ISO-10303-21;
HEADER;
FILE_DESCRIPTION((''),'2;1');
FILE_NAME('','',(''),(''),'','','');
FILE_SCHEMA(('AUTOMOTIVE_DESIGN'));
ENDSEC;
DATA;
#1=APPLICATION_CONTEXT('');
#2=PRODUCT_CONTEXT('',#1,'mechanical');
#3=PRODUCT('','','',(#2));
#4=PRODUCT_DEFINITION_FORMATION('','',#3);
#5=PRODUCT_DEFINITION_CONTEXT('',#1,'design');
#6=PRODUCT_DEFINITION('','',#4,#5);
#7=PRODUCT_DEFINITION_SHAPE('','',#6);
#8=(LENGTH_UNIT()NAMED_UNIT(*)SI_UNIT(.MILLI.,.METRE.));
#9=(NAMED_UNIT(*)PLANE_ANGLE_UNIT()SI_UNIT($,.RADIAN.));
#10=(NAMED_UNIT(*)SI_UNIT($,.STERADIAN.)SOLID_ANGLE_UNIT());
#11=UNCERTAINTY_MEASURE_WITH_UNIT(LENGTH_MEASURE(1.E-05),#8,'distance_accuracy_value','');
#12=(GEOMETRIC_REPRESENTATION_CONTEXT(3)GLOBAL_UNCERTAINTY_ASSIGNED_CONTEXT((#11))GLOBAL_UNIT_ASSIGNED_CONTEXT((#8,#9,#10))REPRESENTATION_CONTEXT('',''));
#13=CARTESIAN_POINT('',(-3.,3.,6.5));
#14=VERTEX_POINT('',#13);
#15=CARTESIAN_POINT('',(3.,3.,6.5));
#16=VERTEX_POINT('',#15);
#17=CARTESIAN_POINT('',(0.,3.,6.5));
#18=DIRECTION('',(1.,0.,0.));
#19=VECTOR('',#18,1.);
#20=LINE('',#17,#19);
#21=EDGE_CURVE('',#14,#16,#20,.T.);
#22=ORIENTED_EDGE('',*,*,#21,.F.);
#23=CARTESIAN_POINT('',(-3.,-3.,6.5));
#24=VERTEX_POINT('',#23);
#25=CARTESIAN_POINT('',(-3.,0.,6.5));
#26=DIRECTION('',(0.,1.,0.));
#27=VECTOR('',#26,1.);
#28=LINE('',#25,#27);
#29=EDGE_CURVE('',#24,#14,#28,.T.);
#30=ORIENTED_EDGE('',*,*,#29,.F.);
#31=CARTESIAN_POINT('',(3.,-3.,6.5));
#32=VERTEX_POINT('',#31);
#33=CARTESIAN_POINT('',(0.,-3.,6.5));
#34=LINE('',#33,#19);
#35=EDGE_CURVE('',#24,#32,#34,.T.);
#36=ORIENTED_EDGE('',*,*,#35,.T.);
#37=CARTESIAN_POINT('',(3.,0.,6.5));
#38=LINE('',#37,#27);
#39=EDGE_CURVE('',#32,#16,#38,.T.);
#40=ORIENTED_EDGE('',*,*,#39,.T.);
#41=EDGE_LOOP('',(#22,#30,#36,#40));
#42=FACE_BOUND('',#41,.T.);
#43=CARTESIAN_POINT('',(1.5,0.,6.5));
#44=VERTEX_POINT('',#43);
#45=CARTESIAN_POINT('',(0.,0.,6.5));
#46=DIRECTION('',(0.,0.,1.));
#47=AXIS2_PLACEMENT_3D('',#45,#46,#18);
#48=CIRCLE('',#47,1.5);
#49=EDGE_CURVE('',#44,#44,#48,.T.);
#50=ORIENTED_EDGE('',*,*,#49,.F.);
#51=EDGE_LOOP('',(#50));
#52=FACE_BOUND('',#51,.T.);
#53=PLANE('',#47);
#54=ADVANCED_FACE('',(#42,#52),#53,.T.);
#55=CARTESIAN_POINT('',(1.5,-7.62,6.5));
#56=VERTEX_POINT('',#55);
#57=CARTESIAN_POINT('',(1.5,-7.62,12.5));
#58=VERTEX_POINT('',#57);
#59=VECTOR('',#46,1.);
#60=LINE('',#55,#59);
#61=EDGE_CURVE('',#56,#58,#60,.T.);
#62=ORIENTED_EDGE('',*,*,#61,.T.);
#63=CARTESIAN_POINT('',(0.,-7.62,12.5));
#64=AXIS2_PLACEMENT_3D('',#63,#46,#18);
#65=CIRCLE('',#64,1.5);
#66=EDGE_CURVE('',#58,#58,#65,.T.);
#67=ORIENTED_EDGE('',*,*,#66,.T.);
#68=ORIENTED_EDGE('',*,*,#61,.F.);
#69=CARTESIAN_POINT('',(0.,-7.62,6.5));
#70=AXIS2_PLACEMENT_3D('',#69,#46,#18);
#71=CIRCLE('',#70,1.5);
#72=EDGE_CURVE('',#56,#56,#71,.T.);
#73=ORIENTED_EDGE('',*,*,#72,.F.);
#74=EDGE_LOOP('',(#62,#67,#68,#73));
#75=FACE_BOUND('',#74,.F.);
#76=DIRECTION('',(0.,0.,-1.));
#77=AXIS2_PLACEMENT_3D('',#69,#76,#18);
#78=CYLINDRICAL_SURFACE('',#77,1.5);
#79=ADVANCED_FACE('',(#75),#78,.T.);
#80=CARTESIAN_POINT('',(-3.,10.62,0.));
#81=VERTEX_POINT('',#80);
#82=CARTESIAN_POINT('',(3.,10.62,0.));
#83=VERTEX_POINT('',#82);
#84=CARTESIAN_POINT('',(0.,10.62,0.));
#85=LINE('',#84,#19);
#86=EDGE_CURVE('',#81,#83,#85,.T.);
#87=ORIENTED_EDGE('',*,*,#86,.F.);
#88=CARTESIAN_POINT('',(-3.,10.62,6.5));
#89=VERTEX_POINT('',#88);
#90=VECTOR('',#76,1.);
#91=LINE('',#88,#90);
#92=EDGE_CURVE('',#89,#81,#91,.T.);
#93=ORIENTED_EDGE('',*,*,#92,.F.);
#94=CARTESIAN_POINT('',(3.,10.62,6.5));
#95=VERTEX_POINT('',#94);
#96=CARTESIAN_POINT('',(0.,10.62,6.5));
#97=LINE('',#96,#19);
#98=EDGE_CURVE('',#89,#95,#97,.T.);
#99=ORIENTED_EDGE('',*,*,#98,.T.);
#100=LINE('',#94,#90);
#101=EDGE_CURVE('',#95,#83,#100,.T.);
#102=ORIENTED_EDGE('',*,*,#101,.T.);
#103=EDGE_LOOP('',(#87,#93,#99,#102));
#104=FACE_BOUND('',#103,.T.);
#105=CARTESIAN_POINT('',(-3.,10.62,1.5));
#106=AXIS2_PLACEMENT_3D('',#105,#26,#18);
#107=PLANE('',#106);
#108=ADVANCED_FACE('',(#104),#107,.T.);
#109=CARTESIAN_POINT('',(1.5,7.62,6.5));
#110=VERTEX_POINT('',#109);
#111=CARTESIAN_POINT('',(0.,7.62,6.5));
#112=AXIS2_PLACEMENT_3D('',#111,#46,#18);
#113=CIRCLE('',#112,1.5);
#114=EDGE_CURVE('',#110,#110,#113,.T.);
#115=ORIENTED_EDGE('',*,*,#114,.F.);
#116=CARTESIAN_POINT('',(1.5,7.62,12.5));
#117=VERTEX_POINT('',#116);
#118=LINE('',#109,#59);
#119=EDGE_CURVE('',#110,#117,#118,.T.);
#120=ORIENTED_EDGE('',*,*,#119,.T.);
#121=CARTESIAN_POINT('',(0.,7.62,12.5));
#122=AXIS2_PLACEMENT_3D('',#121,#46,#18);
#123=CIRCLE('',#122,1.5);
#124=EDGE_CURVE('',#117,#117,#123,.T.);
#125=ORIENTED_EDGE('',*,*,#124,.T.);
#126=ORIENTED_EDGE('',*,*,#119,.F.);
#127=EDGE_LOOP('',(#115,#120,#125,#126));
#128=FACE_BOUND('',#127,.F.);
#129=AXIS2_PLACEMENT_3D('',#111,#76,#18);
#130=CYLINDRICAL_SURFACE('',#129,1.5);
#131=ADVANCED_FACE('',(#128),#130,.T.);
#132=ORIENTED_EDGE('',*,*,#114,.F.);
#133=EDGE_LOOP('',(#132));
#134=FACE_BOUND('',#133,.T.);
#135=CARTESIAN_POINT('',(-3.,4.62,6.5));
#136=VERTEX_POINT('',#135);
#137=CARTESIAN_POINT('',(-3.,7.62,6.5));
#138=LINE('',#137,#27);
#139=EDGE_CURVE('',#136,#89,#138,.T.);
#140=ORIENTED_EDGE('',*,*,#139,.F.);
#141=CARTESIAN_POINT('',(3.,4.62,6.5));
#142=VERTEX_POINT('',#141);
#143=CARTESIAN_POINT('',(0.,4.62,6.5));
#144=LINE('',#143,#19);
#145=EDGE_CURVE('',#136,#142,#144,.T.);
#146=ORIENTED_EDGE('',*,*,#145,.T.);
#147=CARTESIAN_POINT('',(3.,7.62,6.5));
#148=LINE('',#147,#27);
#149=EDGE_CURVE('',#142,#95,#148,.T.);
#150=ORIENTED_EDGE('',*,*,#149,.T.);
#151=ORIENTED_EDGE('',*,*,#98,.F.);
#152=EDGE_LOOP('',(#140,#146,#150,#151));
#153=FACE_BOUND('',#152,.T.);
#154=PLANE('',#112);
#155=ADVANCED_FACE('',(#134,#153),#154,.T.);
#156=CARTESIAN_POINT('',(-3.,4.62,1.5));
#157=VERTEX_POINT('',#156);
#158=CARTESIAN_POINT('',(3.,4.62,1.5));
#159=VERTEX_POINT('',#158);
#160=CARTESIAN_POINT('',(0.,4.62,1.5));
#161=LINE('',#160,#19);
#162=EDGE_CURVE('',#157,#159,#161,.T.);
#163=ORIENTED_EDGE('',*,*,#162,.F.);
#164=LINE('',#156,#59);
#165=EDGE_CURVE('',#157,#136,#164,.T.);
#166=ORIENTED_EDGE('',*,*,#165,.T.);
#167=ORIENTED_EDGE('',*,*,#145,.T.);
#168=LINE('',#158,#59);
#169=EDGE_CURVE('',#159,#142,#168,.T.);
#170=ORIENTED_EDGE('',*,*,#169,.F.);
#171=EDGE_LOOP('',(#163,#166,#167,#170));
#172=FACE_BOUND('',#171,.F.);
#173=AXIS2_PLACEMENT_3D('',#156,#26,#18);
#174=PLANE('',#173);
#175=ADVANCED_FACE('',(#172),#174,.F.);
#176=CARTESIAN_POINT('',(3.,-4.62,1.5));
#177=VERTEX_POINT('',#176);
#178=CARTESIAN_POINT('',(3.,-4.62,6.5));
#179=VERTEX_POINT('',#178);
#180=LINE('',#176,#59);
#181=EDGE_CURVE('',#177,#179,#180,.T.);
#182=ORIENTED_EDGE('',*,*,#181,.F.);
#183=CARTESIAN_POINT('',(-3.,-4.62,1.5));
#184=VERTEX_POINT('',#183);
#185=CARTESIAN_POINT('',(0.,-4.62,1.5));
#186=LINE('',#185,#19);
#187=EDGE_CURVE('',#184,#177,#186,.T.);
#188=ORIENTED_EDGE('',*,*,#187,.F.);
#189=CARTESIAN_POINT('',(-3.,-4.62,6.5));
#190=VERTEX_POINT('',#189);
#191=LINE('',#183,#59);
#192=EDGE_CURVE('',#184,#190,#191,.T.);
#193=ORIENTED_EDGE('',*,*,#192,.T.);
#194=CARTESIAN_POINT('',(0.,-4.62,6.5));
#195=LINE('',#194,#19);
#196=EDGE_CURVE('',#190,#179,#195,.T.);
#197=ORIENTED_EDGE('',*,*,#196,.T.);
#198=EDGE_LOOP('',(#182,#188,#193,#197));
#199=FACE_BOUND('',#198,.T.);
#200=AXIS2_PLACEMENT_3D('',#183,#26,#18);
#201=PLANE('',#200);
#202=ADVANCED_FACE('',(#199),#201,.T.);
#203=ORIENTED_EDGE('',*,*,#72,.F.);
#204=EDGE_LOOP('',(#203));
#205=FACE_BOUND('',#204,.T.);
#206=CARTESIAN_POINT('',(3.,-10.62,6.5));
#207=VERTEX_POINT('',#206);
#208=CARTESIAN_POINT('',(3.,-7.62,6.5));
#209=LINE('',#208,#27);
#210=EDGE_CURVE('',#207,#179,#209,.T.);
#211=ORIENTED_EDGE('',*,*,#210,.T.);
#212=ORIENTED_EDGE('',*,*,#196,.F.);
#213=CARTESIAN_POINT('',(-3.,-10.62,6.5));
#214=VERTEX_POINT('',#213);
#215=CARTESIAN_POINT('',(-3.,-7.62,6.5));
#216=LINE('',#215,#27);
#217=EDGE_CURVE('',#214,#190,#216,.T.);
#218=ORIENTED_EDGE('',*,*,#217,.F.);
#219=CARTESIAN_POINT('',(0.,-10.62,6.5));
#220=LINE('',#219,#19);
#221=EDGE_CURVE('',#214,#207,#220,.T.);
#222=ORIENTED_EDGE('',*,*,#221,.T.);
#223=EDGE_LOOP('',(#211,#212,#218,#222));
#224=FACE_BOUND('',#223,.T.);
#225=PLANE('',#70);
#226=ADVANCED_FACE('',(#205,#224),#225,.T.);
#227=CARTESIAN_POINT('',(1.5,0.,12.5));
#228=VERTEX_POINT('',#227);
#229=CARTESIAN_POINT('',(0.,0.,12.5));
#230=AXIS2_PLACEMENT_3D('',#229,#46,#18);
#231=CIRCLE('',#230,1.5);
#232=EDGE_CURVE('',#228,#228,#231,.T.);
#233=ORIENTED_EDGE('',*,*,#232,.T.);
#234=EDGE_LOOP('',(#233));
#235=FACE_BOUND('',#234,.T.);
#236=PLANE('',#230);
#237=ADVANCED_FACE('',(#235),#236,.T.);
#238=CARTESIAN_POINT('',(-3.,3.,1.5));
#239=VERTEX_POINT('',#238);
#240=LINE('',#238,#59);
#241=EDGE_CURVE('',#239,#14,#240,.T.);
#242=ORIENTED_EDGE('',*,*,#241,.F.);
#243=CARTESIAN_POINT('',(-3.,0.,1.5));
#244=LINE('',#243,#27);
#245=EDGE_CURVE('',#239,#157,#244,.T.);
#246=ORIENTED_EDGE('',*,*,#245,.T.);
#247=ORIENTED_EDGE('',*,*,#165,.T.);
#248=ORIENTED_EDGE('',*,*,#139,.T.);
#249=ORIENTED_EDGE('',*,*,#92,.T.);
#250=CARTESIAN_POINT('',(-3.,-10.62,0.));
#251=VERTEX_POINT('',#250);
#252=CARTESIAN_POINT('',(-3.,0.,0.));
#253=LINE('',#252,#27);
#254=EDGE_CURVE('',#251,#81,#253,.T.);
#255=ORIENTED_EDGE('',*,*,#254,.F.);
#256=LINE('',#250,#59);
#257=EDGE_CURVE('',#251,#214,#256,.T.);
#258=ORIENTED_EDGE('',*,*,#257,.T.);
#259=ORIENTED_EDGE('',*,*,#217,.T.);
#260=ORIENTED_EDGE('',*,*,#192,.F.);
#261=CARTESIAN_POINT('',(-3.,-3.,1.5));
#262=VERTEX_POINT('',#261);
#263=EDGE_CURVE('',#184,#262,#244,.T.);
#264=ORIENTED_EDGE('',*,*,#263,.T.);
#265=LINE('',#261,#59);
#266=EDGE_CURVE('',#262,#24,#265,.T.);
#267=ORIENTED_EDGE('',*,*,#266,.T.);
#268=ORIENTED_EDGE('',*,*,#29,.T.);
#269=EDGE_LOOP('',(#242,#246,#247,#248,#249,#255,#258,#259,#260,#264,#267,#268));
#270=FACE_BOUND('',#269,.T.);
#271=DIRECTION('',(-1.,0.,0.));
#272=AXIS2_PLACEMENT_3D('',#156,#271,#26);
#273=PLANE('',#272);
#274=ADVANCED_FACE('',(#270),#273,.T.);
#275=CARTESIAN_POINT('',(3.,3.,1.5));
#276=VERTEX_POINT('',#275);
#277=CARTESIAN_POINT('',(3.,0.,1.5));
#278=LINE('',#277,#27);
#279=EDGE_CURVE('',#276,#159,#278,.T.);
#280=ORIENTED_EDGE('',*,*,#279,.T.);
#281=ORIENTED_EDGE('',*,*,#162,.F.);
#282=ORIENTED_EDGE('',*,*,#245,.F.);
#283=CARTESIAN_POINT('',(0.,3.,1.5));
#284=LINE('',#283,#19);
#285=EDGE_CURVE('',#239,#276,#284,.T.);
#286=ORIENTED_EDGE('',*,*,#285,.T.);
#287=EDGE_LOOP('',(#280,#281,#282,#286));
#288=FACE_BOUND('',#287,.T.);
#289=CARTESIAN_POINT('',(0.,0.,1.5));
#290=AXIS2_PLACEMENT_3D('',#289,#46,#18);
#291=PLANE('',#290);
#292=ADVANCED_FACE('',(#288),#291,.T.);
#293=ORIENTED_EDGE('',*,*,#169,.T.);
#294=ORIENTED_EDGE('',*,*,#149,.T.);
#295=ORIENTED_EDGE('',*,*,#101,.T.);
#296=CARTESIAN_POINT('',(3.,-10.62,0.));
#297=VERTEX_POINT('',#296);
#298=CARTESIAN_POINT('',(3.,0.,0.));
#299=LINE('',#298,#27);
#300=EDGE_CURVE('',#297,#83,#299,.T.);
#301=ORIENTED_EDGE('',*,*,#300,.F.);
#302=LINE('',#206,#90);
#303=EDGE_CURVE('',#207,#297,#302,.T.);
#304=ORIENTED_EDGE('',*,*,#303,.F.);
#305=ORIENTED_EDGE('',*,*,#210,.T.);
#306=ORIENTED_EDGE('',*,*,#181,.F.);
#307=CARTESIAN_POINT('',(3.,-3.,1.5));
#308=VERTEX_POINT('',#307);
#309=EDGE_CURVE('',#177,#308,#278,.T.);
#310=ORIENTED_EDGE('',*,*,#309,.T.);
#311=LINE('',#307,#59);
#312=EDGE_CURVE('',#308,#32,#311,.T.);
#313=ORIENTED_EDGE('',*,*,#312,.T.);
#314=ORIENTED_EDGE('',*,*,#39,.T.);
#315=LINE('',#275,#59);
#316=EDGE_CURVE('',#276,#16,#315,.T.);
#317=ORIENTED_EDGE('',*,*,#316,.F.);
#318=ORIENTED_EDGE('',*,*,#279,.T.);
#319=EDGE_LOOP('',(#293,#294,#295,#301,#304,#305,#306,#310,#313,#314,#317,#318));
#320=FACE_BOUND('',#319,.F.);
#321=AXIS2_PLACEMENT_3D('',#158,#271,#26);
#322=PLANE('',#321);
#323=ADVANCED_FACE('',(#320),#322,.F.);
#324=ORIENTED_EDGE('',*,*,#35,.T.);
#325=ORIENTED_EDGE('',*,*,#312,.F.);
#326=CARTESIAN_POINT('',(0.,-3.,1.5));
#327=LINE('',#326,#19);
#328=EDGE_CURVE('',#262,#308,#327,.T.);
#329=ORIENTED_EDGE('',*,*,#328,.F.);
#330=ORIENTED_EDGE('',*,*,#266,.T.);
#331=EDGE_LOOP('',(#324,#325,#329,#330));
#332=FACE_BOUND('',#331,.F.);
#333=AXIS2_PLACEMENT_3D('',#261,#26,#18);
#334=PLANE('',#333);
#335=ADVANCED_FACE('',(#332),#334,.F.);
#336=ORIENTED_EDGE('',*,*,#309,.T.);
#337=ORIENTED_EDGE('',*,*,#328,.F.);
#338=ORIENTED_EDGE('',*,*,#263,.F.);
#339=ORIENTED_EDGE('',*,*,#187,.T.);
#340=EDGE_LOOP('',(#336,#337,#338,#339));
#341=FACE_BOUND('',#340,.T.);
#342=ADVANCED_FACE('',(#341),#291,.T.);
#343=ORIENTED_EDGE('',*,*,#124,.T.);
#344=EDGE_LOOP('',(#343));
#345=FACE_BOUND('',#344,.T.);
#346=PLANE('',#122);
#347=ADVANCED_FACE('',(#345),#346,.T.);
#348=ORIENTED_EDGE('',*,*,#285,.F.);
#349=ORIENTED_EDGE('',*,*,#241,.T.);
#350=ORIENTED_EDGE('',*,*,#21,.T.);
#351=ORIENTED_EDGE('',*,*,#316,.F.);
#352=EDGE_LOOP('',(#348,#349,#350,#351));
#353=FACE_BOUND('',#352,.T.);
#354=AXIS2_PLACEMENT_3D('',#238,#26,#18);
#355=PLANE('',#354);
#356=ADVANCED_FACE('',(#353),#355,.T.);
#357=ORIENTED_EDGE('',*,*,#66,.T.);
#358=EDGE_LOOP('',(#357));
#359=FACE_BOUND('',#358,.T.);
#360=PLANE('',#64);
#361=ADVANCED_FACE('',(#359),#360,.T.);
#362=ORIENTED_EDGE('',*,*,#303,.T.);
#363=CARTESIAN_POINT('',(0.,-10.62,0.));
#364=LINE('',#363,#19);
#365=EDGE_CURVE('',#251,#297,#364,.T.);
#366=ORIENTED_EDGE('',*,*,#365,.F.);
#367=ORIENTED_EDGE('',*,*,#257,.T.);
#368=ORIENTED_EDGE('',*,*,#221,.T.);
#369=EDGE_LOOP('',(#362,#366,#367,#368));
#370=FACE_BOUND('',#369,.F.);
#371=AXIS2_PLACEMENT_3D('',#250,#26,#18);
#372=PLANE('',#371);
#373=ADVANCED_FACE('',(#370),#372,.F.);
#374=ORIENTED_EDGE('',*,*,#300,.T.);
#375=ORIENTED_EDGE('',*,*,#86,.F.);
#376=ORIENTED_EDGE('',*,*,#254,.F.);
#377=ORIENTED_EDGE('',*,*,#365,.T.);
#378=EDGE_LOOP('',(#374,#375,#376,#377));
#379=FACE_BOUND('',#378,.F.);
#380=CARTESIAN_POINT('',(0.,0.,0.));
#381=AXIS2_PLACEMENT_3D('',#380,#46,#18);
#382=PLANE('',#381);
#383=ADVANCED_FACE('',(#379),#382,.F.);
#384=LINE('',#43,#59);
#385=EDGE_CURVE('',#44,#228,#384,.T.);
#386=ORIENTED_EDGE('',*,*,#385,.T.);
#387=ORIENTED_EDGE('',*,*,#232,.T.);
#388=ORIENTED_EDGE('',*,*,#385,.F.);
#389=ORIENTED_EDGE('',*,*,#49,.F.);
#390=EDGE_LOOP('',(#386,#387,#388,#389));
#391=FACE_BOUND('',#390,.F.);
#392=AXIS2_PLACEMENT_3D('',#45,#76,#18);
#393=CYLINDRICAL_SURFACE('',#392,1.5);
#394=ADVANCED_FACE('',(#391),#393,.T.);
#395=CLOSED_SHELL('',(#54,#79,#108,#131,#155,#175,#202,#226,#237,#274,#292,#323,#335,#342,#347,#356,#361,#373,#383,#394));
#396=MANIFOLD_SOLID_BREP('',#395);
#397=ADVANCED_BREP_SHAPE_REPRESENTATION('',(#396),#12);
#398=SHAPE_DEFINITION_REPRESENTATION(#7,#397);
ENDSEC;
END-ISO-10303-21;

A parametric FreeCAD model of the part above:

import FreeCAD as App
import Part
import Sketcher

doc = App.newDocument("Part")
body = doc.addObject("PartDesign::Body", "Body")

# Sketch on XY plane
sketch1 = body.newObject("Sketcher::SketchObject", "Sketch")
sketch1.AttachmentSupport = (doc.getObject("XY_Plane"), [""])
sketch1.MapMode = "FlatFace"
sketch1.addGeometry(Part.LineSegment(App.Vector(-3, 10.62, 0), App.Vector(-3, -10.62, 0)), False)
sketch1.addGeometry(Part.LineSegment(App.Vector(-3, -10.62, 0), App.Vector(3, -10.62, 0)), False)
sketch1.addGeometry(Part.LineSegment(App.Vector(3, -10.62, 0), App.Vector(3, 10.62, 0)), False)
sketch1.addGeometry(Part.LineSegment(App.Vector(3, 10.62, 0), App.Vector(-3, 10.62, 0)), False)
sketch1.addConstraint(Sketcher.Constraint("Coincident", 0, 2, 1, 1))
sketch1.addConstraint(Sketcher.Constraint("Coincident", 1, 2, 2, 1))
sketch1.addConstraint(Sketcher.Constraint("Coincident", 2, 2, 3, 1))
sketch1.addConstraint(Sketcher.Constraint("Coincident", 3, 2, 0, 1))
sketch1.addConstraint(Sketcher.Constraint("Vertical", 0))
sketch1.addConstraint(Sketcher.Constraint("Horizontal", 1))
sketch1.addConstraint(Sketcher.Constraint("Vertical", 2))
sketch1.addConstraint(Sketcher.Constraint("Horizontal", 3))
sketch1.addConstraint(Sketcher.Constraint("Symmetric", 0, 2, 2, 2, -1, 1))
sketch1.addConstraint(Sketcher.Constraint("DistanceX", 1, 1, 1, 2, 6.0))
sketch1.addConstraint(Sketcher.Constraint("DistanceY", 0, 2, 0, 1, 21.24))
pad1 = body.newObject("PartDesign::Pad", "Pad")
pad1.Profile = sketch1
pad1.Length = 1.5

# Sketch on XY plane
sketch2 = body.newObject("Sketcher::SketchObject", "Sketch001")
sketch2.AttachmentSupport = (doc.getObject("XY_Plane"), [""])
sketch2.MapMode = "FlatFace"
sketch2.AttachmentOffset = App.Placement(App.Vector(0, 0, 1.5), App.Rotation())
sketch2.addGeometry(Part.LineSegment(App.Vector(-3, 10.62, 0), App.Vector(-3, 4.62, 0)), False)
sketch2.addGeometry(Part.LineSegment(App.Vector(-3, 4.62, 0), App.Vector(3, 4.62, 0)), False)
sketch2.addGeometry(Part.LineSegment(App.Vector(3, 4.62, 0), App.Vector(3, 10.62, 0)), False)
sketch2.addGeometry(Part.LineSegment(App.Vector(3, 10.62, 0), App.Vector(-3, 10.62, 0)), False)
sketch2.addGeometry(Part.LineSegment(App.Vector(-3, 3, 0), App.Vector(-3, -3, 0)), False)
sketch2.addGeometry(Part.LineSegment(App.Vector(-3, -3, 0), App.Vector(3, -3, 0)), False)
sketch2.addGeometry(Part.LineSegment(App.Vector(3, -3, 0), App.Vector(3, 3, 0)), False)
sketch2.addGeometry(Part.LineSegment(App.Vector(3, 3, 0), App.Vector(-3, 3, 0)), False)
sketch2.addGeometry(Part.LineSegment(App.Vector(-3, -4.62, 0), App.Vector(-3, -10.62, 0)), False)
sketch2.addGeometry(Part.LineSegment(App.Vector(-3, -10.62, 0), App.Vector(3, -10.62, 0)), False)
sketch2.addGeometry(Part.LineSegment(App.Vector(3, -10.62, 0), App.Vector(3, -4.62, 0)), False)
sketch2.addGeometry(Part.LineSegment(App.Vector(3, -4.62, 0), App.Vector(-3, -4.62, 0)), False)
sketch2.addConstraint(Sketcher.Constraint("Coincident", 0, 2, 1, 1))
sketch2.addConstraint(Sketcher.Constraint("Coincident", 1, 2, 2, 1))
sketch2.addConstraint(Sketcher.Constraint("Coincident", 2, 2, 3, 1))
sketch2.addConstraint(Sketcher.Constraint("Coincident", 3, 2, 0, 1))
sketch2.addConstraint(Sketcher.Constraint("Coincident", 4, 2, 5, 1))
sketch2.addConstraint(Sketcher.Constraint("Coincident", 5, 2, 6, 1))
sketch2.addConstraint(Sketcher.Constraint("Coincident", 6, 2, 7, 1))
sketch2.addConstraint(Sketcher.Constraint("Coincident", 7, 2, 4, 1))
sketch2.addConstraint(Sketcher.Constraint("Coincident", 8, 2, 9, 1))
sketch2.addConstraint(Sketcher.Constraint("Coincident", 9, 2, 10, 1))
sketch2.addConstraint(Sketcher.Constraint("Coincident", 10, 2, 11, 1))
sketch2.addConstraint(Sketcher.Constraint("Coincident", 11, 2, 8, 1))
sketch2.addConstraint(Sketcher.Constraint("Vertical", 0))
sketch2.addConstraint(Sketcher.Constraint("Horizontal", 1))
sketch2.addConstraint(Sketcher.Constraint("Vertical", 2))
sketch2.addConstraint(Sketcher.Constraint("Horizontal", 3))
sketch2.addConstraint(Sketcher.Constraint("Vertical", 4))
sketch2.addConstraint(Sketcher.Constraint("Horizontal", 5))
sketch2.addConstraint(Sketcher.Constraint("Vertical", 6))
sketch2.addConstraint(Sketcher.Constraint("Horizontal", 7))
sketch2.addConstraint(Sketcher.Constraint("Vertical", 8))
sketch2.addConstraint(Sketcher.Constraint("Horizontal", 9))
sketch2.addConstraint(Sketcher.Constraint("Vertical", 10))
sketch2.addConstraint(Sketcher.Constraint("Horizontal", 11))
sketch2.addConstraint(Sketcher.Constraint("Symmetric", 4, 2, 6, 2, -1, 1))
sketch2.addConstraint(Sketcher.Constraint("Symmetric", 2, 2, 8, 2, -1, 1))
sketch2.addConstraint(Sketcher.Constraint("Symmetric", 0, 2, 10, 2, -1, 1))
sketch2.addConstraint(Sketcher.Constraint("Vertical", 3, 2, 4, 2))
sketch2.addConstraint(Sketcher.Constraint("Vertical", 2, 2, 5, 2))
sketch2.addConstraint(Sketcher.Constraint("Equal", 11, 0))
sketch2.addConstraint(Sketcher.Constraint("Equal", 2, 4))
sketch2.addConstraint(Sketcher.Constraint("DistanceX", 1, 1, 1, 2, 6.0))
sketch2.addConstraint(Sketcher.Constraint("DistanceY", -1, 1, 0, 2, 4.62))
pad2 = body.newObject("PartDesign::Pad", "Pad001")
pad2.Profile = sketch2
pad2.Length = 5

# Sketch on XY plane
sketch3 = body.newObject("Sketcher::SketchObject", "Sketch002")
sketch3.AttachmentSupport = (doc.getObject("XY_Plane"), [""])
sketch3.MapMode = "FlatFace"
sketch3.AttachmentOffset = App.Placement(App.Vector(0, 0, 6.5), App.Rotation())
sketch3.addGeometry(Part.Circle(App.Vector(0, 0, 0), App.Vector(0, 0, 1), 1.5), False)
sketch3.addGeometry(Part.Circle(App.Vector(0, 7.62, 0), App.Vector(0, 0, 1), 1.5), False)
sketch3.addGeometry(Part.Circle(App.Vector(0, -7.62, 0), App.Vector(0, 0, 1), 1.5), False)
sketch3.addConstraint(Sketcher.Constraint("Coincident", 0, 3, -1, 1))
sketch3.addConstraint(Sketcher.Constraint("Equal", 0, 1))
sketch3.addConstraint(Sketcher.Constraint("Equal", 1, 2))
sketch3.addConstraint(Sketcher.Constraint("Symmetric", 1, 3, 2, 3, -1, 1))
sketch3.addConstraint(Sketcher.Constraint("PointOnObject", 1, 3, -2))
sketch3.addConstraint(Sketcher.Constraint("Diameter", 0, 3.0))
sketch3.addConstraint(Sketcher.Constraint("DistanceY", -1, 1, 1, 3, 7.62))
pad3 = body.newObject("PartDesign::Pad", "Pad002")
pad3.Profile = sketch3
pad3.Length = 6

doc.recompute()
